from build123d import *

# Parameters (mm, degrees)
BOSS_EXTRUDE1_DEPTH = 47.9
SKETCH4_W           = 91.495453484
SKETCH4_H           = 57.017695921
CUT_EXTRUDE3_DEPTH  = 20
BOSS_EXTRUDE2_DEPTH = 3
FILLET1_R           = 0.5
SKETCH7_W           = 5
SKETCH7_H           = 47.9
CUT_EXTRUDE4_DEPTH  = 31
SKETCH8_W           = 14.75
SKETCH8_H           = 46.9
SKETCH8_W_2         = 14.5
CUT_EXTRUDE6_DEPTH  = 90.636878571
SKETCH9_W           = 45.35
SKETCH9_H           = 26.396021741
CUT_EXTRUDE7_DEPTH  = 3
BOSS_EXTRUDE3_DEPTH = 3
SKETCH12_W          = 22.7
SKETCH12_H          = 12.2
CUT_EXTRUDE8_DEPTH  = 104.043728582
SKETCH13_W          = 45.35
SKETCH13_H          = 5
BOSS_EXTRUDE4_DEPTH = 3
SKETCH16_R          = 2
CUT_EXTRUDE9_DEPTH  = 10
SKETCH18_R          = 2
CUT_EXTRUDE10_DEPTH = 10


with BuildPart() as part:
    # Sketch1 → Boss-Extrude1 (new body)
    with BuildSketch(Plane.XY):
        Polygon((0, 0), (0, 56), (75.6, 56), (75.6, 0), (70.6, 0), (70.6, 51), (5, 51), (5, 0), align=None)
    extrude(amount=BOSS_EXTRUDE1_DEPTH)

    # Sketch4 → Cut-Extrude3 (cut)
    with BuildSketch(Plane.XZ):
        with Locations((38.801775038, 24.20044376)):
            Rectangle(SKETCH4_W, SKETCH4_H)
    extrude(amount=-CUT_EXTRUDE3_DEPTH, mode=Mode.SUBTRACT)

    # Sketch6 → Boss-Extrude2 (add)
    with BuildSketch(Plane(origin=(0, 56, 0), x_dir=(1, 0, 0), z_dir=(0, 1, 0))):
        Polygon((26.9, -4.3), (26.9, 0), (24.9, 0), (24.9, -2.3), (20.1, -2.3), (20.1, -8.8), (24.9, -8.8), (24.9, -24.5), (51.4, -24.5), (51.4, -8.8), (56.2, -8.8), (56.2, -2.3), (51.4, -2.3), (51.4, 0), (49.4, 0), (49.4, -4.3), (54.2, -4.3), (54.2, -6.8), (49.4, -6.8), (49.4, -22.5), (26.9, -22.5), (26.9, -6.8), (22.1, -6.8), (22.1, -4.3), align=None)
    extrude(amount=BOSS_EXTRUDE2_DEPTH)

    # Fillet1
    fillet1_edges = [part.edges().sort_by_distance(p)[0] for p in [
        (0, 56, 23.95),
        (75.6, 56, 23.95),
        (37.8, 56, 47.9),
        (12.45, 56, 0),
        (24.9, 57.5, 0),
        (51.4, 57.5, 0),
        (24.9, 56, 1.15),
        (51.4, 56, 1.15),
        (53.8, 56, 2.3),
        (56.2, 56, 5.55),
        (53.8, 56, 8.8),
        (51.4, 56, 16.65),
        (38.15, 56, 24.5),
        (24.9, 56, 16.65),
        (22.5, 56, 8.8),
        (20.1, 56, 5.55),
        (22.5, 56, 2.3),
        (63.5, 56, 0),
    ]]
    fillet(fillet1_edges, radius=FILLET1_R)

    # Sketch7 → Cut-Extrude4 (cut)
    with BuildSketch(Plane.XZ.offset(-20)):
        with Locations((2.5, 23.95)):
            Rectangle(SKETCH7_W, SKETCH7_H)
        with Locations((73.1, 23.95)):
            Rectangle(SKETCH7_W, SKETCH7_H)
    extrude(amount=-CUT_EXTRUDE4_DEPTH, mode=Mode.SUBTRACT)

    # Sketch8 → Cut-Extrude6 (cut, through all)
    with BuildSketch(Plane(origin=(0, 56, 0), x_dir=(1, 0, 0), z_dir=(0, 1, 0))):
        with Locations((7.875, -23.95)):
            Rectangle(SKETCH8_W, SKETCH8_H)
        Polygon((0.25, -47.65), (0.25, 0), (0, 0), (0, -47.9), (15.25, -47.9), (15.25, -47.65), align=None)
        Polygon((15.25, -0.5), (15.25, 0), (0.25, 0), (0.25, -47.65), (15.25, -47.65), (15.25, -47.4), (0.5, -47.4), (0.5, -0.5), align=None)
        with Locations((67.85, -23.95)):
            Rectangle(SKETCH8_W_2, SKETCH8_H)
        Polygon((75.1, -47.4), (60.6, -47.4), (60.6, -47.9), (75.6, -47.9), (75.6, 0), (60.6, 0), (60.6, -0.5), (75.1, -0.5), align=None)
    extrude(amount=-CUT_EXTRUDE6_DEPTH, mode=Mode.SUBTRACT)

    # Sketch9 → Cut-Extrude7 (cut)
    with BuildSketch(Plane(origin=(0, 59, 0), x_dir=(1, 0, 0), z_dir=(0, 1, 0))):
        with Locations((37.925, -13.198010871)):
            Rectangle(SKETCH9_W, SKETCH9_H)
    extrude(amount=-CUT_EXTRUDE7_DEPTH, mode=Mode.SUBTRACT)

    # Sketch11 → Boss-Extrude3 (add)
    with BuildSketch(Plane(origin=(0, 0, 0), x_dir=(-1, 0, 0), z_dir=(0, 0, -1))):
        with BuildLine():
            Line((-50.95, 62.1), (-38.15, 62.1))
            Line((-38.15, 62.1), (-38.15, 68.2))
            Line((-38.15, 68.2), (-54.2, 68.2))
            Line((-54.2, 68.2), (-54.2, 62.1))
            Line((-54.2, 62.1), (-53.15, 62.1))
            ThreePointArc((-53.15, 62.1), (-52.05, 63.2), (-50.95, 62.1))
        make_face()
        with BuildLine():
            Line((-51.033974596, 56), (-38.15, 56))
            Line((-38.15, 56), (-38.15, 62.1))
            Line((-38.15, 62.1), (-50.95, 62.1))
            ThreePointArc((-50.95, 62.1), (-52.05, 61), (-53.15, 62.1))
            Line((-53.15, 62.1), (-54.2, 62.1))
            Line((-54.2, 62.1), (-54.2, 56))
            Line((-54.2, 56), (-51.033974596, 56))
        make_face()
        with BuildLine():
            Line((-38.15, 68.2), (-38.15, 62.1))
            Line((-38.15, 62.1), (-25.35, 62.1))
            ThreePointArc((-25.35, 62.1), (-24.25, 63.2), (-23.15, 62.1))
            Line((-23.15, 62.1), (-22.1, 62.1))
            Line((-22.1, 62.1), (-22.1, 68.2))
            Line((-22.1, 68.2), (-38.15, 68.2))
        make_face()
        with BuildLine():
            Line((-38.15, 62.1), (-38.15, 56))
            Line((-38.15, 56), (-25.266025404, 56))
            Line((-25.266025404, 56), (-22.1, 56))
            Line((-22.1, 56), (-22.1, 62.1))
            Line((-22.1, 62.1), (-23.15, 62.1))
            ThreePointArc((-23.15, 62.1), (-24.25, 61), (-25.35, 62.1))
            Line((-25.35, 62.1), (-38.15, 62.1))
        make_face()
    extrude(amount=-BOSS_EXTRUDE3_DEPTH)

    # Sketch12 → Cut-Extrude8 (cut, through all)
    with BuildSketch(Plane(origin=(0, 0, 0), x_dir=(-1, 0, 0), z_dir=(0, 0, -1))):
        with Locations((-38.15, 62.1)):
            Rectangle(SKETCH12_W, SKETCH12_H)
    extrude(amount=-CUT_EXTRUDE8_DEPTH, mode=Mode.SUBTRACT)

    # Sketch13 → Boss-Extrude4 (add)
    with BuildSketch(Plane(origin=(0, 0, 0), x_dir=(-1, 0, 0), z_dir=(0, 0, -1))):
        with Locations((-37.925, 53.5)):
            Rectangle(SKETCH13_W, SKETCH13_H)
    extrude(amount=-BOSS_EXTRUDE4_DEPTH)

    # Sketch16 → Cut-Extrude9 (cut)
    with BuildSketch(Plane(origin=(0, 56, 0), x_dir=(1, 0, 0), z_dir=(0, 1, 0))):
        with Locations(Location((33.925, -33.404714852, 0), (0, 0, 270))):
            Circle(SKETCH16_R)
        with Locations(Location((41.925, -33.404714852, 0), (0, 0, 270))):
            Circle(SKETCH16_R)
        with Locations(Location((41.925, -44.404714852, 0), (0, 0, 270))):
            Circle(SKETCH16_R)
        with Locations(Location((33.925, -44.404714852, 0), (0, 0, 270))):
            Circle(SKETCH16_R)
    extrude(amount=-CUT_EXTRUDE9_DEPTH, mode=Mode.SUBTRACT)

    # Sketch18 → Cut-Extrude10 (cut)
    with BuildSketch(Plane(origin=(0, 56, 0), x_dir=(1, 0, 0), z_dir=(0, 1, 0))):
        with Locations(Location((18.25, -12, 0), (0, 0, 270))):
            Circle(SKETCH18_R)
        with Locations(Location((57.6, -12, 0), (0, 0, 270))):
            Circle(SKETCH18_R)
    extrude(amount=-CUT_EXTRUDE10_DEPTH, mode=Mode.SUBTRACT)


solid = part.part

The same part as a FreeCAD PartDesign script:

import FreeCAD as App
import Part
import Sketcher
Q = App.Units.Quantity


def edges_at(feature, points):
    """Names of the edges that pass closest to the given points."""
    edges = feature.Shape.Edges
    near = lambda p: min(range(len(edges)), key=lambda i: edges[i].distToShape(Part.Vertex(*p))[0])
    return sorted({f"Edge{near(p) + 1}" for p in points})

doc = App.newDocument("Part")
body = doc.addObject("PartDesign::Body", "Body")

# Sketch on XY plane
sketch1 = body.newObject("Sketcher::SketchObject", "Sketch")
sketch1.AttachmentSupport = (doc.getObject("XY_Plane"), [""])
sketch1.MapMode = "FlatFace"
sketch1.addGeometry([
    Part.LineSegment(App.Vector(0, 56, 0), App.Vector(0, 0, 0)),  # 0
    Part.LineSegment(App.Vector(0, 0, 0), App.Vector(5, 0, 0)),  # 1
    Part.LineSegment(App.Vector(5, 0, 0), App.Vector(5, 51, 0)),  # 2
    Part.LineSegment(App.Vector(5, 51, 0), App.Vector(71, 51, 0)),  # 3
    Part.LineSegment(App.Vector(71, 51, 0), App.Vector(71, 0, 0)),  # 4
    Part.LineSegment(App.Vector(71, 0, 0), App.Vector(76, 0, 0)),  # 5
    Part.LineSegment(App.Vector(76, 0, 0), App.Vector(76, 56, 0)),  # 6
    Part.LineSegment(App.Vector(76, 56, 0), App.Vector(0, 56, 0)),  # 7
], False)
sketch1.addConstraint([
    Sketcher.Constraint("Coincident", 0, 2, 1, 1),
    Sketcher.Constraint("Coincident", 1, 2, 2, 1),
    Sketcher.Constraint("Coincident", 2, 2, 3, 1),
    Sketcher.Constraint("Coincident", 3, 2, 4, 1),
    Sketcher.Constraint("Coincident", 4, 2, 5, 1),
    Sketcher.Constraint("Coincident", 5, 2, 6, 1),
    Sketcher.Constraint("Coincident", 6, 2, 7, 1),
    Sketcher.Constraint("Coincident", 7, 2, 0, 1),
    Sketcher.Constraint("Vertical", 0),
    Sketcher.Constraint("Horizontal", 1),
    Sketcher.Constraint("Vertical", 2),
    Sketcher.Constraint("Horizontal", 3),
    Sketcher.Constraint("Vertical", 4),
    Sketcher.Constraint("Horizontal", 5),
    Sketcher.Constraint("Vertical", 6),
    Sketcher.Constraint("Horizontal", 7),
    Sketcher.Constraint("Coincident", 0, 2, -1, 1),
    Sketcher.Constraint("PointOnObject", 4, 2, -1),
    Sketcher.Constraint("Equal", 1, 5),
    Sketcher.Constraint("DistanceX", 1, 1, 1, 2, Q("5 mm")),
    Sketcher.Constraint("DistanceY", 0, 2, 0, 1, Q("56 mm")),
    Sketcher.Constraint("DistanceY", 2, 1, 2, 2, Q("51 mm")),
    Sketcher.Constraint("DistanceX", 3, 1, 3, 2, Q("65.6 mm")),
])
pad1 = body.newObject("PartDesign::Pad", "Pad")
pad1.Profile = sketch1
pad1.Length = 47.9

# Sketch on XZ plane
sketch2 = body.newObject("Sketcher::SketchObject", "Sketch001")
sketch2.AttachmentSupport = (doc.getObject("XZ_Plane"), [""])
sketch2.MapMode = "FlatFace"
sketch2.addGeometry([
    Part.LineSegment(App.Vector(-7, 53, 0), App.Vector(-7, -4, 0)),
    Part.LineSegment(App.Vector(-7, -4, 0), App.Vector(85, -4, 0)),
    Part.LineSegment(App.Vector(85, -4, 0), App.Vector(85, 53, 0)),
    Part.LineSegment(App.Vector(85, 53, 0), App.Vector(-7, 53, 0)),
], False)
sketch2.addConstraint([
    Sketcher.Constraint("Coincident", 0, 2, 1, 1),
    Sketcher.Constraint("Coincident", 1, 2, 2, 1),
    Sketcher.Constraint("Coincident", 2, 2, 3, 1),
    Sketcher.Constraint("Coincident", 3, 2, 0, 1),
    Sketcher.Constraint("Vertical", 0),
    Sketcher.Constraint("Horizontal", 1),
    Sketcher.Constraint("Vertical", 2),
    Sketcher.Constraint("Horizontal", 3),
    Sketcher.Constraint("DistanceX", -1, 1, 1, 2, Q("84.549502 mm")),
    Sketcher.Constraint("DistanceX", 1, 1, 1, 2, Q("91.495453 mm")),
    Sketcher.Constraint("DistanceY", 0, 2, 0, 1, Q("57.017696 mm")),
    Sketcher.Constraint("DistanceY", -1, 1, 2, 2, Q("52.709292 mm")),
])
pocket1 = body.newObject("PartDesign::Pocket", "Pocket")
pocket1.Profile = sketch2
pocket1.Length = 20

# Sketch on XZ plane
sketch3 = body.newObject("Sketcher::SketchObject", "Sketch002")
sketch3.AttachmentSupport = (doc.getObject("XZ_Plane"), [""])
sketch3.MapMode = "FlatFace"
sketch3.AttachmentOffset = App.Placement(App.Vector(0, 0, -56), App.Rotation())
sketch3.addGeometry([
    Part.LineSegment(App.Vector(26.9, 4.3, 0), App.Vector(26.9, 0, 0)),  # 0
    Part.LineSegment(App.Vector(26.9, 0, 0), App.Vector(24.9, 0, 0)),  # 1
    Part.LineSegment(App.Vector(24.9, 0, 0), App.Vector(24.9, 2.3, 0)),  # 2
    Part.LineSegment(App.Vector(24.9, 2.3, 0), App.Vector(20.1, 2.3, 0)),  # 3
    Part.LineSegment(App.Vector(20.1, 2.3, 0), App.Vector(20.1, 8.8, 0)),  # 4
    Part.LineSegment(App.Vector(20.1, 8.8, 0), App.Vector(24.9, 8.8, 0)),  # 5
    Part.LineSegment(App.Vector(24.9, 8.8, 0), App.Vector(24.9, 24.5, 0)),  # 6
    Part.LineSegment(App.Vector(24.9, 24.5, 0), App.Vector(51.4, 24.5, 0)),  # 7
    Part.LineSegment(App.Vector(51.4, 24.5, 0), App.Vector(51.4, 8.8, 0)),  # 8
    Part.LineSegment(App.Vector(51.4, 8.8, 0), App.Vector(56.2, 8.8, 0)),  # 9
    Part.LineSegment(App.Vector(56.2, 8.8, 0), App.Vector(56.2, 2.3, 0)),  # 10
    Part.LineSegment(App.Vector(56.2, 2.3, 0), App.Vector(51.4, 2.3, 0)),  # 11
    Part.LineSegment(App.Vector(51.4, 2.3, 0), App.Vector(51.4, 0, 0)),  # 12
    Part.LineSegment(App.Vector(51.4, 0, 0), App.Vector(49.4, 0, 0)),  # 13
    Part.LineSegment(App.Vector(49.4, 0, 0), App.Vector(49.4, 4.3, 0)),  # 14
    Part.LineSegment(App.Vector(49.4, 4.3, 0), App.Vector(54.2, 4.3, 0)),  # 15
    Part.LineSegment(App.Vector(54.2, 4.3, 0), App.Vector(54.2, 6.8, 0)),  # 16
    Part.LineSegment(App.Vector(54.2, 6.8, 0), App.Vector(49.4, 6.8, 0)),  # 17
    Part.LineSegment(App.Vector(49.4, 6.8, 0), App.Vector(49.4, 22.5, 0)),  # 18
    Part.LineSegment(App.Vector(49.4, 22.5, 0), App.Vector(26.9, 22.5, 0)),  # 19
    Part.LineSegment(App.Vector(26.9, 22.5, 0), App.Vector(26.9, 6.8, 0)),  # 20
    Part.LineSegment(App.Vector(26.9, 6.8, 0), App.Vector(22.1, 6.8, 0)),  # 21
    Part.LineSegment(App.Vector(22.1, 6.8, 0), App.Vector(22.1, 4.3, 0)),  # 22
    Part.LineSegment(App.Vector(22.1, 4.3, 0), App.Vector(26.9, 4.3, 0)),  # 23
], False)
sketch3.addConstraint([
    Sketcher.Constraint("Coincident", 0, 2, 1, 1),
    Sketcher.Constraint("Coincident", 1, 2, 2, 1),
    Sketcher.Constraint("Coincident", 2, 2, 3, 1),
    Sketcher.Constraint("Coincident", 3, 2, 4, 1),
    Sketcher.Constraint("Coincident", 4, 2, 5, 1),
    Sketcher.Constraint("Coincident", 5, 2, 6, 1),
    Sketcher.Constraint("Coincident", 6, 2, 7, 1),
    Sketcher.Constraint("Coincident", 7, 2, 8, 1),
    Sketcher.Constraint("Coincident", 8, 2, 9, 1),
    Sketcher.Constraint("Coincident", 9, 2, 10, 1),
    Sketcher.Constraint("Coincident", 10, 2, 11, 1),
    Sketcher.Constraint("Coincident", 11, 2, 12, 1),
    Sketcher.Constraint("Coincident", 12, 2, 13, 1),
    Sketcher.Constraint("Coincident", 13, 2, 14, 1),
    Sketcher.Constraint("Coincident", 14, 2, 15, 1),
    Sketcher.Constraint("Coincident", 15, 2, 16, 1),
    Sketcher.Constraint("Coincident", 16, 2, 17, 1),
    Sketcher.Constraint("Coincident", 17, 2, 18, 1),
    Sketcher.Constraint("Coincident", 18, 2, 19, 1),
    Sketcher.Constraint("Coincident", 19, 2, 20, 1),
    Sketcher.Constraint("Coincident", 20, 2, 21, 1),
    Sketcher.Constraint("Coincident", 21, 2, 22, 1),
    Sketcher.Constraint("Coincident", 22, 2, 23, 1),
    Sketcher.Constraint("Coincident", 23, 2, 0, 1),
    Sketcher.Constraint("Vertical", 0),
    Sketcher.Constraint("Horizontal", 1),
    Sketcher.Constraint("Vertical", 2),
    Sketcher.Constraint("Horizontal", 3),
    Sketcher.Constraint("Vertical", 4),
    Sketcher.Constraint("Horizontal", 5),
    Sketcher.Constraint("Vertical", 6),
    Sketcher.Constraint("Horizontal", 7),
    Sketcher.Constraint("Vertical", 8),
    Sketcher.Constraint("Horizontal", 9),
    Sketcher.Constraint("Vertical", 10),
    Sketcher.Constraint("Horizontal", 11),
    Sketcher.Constraint("Vertical", 12),
    Sketcher.Constraint("Horizontal", 13),
    Sketcher.Constraint("Vertical", 14),
    Sketcher.Constraint("Horizontal", 15),
    Sketcher.Constraint("Vertical", 16),
    Sketcher.Constraint("Horizontal", 17),
    Sketcher.Constraint("Vertical", 18),
    Sketcher.Constraint("Horizontal", 19),
    Sketcher.Constraint("Vertical", 20),
    Sketcher.Constraint("Horizontal", 21),
    Sketcher.Constraint("Vertical", 22),
    Sketcher.Constraint("Horizontal", 23),
    Sketcher.Constraint("PointOnObject", 0, 2, -1),
    Sketcher.Constraint("PointOnObject", 12, 2, -1),
    Sketcher.Constraint("Horizontal", 5, 2, 8, 2),
    Sketcher.Constraint("Horizontal", 3, 2, 10, 2),
    Sketcher.Constraint("Horizontal", 17, 2, 20, 2),
    Sketcher.Constraint("Horizontal", 15, 2, 22, 2),
    Sketcher.Constraint("Vertical", 2, 2, 5, 2),
    Sketcher.Constraint("Vertical", 8, 2, 11, 2),
    Sketcher.Constraint("Vertical", 14, 2, 17, 2),
    Sketcher.Constraint("Vertical", 0, 2, 19, 2),
    Sketcher.Constraint("Equal", 5, 9),
    Sketcher.Constraint("Equal", 1, 13),
    Sketcher.Constraint("Equal", 11, 15),
    Sketcher.Constraint("Equal", 17, 21),
    Sketcher.Constraint("Equal", 8, 18),
    Sketcher.Constraint("DistanceX", 1, 2, 1, 1, Q("2 mm")),
    Sketcher.Constraint("DistanceX", 3, 2, 3, 1, Q("4.8 mm")),
    Sketcher.Constraint("DistanceX", 7, 1, 7, 2, Q("26.5 mm")),
    Sketcher.Constraint("DistanceY", 0, 2, 0, 1, Q("4.3 mm")),
    Sketcher.Constraint("DistanceY", 2, 1, 2, 2, Q("2.3 mm")),
    Sketcher.Constraint("DistanceY", 4, 1, 4, 2, Q("6.5 mm")),
    Sketcher.Constraint("DistanceY", 6, 1, 6, 2, Q("15.7 mm")),
    Sketcher.Constraint("DistanceY", 16, 1, 16, 2, Q("2.5 mm")),
    Sketcher.Constraint("DistanceX", -1, 1, 0, 2, Q("26.9 mm")),
])
pad2 = body.newObject("PartDesign::Pad", "Pad001")
pad2.Profile = sketch3
pad2.Length = 3
pad2.Reversed = True
doc.recompute()

fillet = body.newObject("PartDesign::Fillet", "Fillet")
fillet.Base = (pad2, edges_at(pad2, [
    (0, 56, 23.95),
    (75.6, 56, 23.95),
    (37.8, 56, 47.9),
    (12.45, 56, 0),
    (24.9, 57.5, 0),
    (51.4, 57.5, 0),
    (24.9, 56, 1.15),
    (51.4, 56, 1.15),
    (53.8, 56, 2.3),
    (56.2, 56, 5.55),
    (53.8, 56, 8.8),
    (51.4, 56, 16.65),
    (38.15, 56, 24.5),
    (24.9, 56, 16.65),
    (22.5, 56, 8.8),
    (20.1, 56, 5.55),
    (22.5, 56, 2.3),
    (63.5, 56, 0),
]))
fillet.Radius = 0.5

# Sketch on XZ plane
sketch4 = body.newObject("Sketcher::SketchObject", "Sketch003")
sketch4.AttachmentSupport = (doc.getObject("XZ_Plane"), [""])
sketch4.MapMode = "FlatFace"
sketch4.AttachmentOffset = App.Placement(App.Vector(0, 0, -20), App.Rotation())
sketch4.addGeometry([
    Part.LineSegment(App.Vector(0, 48, 0), App.Vector(0, 0, 0)),  # 0
    Part.LineSegment(App.Vector(0, 0, 0), App.Vector(5, 0, 0)),  # 1
    Part.LineSegment(App.Vector(5, 0, 0), App.Vector(5, 48, 0)),  # 2
    Part.LineSegment(App.Vector(5, 48, 0), App.Vector(0, 48, 0)),  # 3
    Part.LineSegment(App.Vector(71, 48, 0), App.Vector(71, 0, 0)),  # 4
    Part.LineSegment(App.Vector(71, 0, 0), App.Vector(76, 0, 0)),  # 5
    Part.LineSegment(App.Vector(76, 0, 0), App.Vector(76, 48, 0)),  # 6
    Part.LineSegment(App.Vector(76, 48, 0), App.Vector(71, 48, 0)),  # 7
], False)
sketch4.addConstraint([
    Sketcher.Constraint("Coincident", 0, 2, 1, 1),
    Sketcher.Constraint("Coincident", 1, 2, 2, 1),
    Sketcher.Constraint("Coincident", 2, 2, 3, 1),
    Sketcher.Constraint("Coincident", 3, 2, 0, 1),
    Sketcher.Constraint("Coincident", 4, 2, 5, 1),
    Sketcher.Constraint("Coincident", 5, 2, 6, 1),
    Sketcher.Constraint("Coincident", 6, 2, 7, 1),
    Sketcher.Constraint("Coincident", 7, 2, 4, 1),
    Sketcher.Constraint("Vertical", 0),
    Sketcher.Constraint("Horizontal", 1),
    Sketcher.Constraint("Vertical", 2),
    Sketcher.Constraint("Horizontal", 3),
    Sketcher.Constraint("Vertical", 4),
    Sketcher.Constraint("Horizontal", 5),
    Sketcher.Constraint("Vertical", 6),
    Sketcher.Constraint("Horizontal", 7),
    Sketcher.Constraint("Coincident", 0, 2, -1, 1),
    Sketcher.Constraint("PointOnObject", 4, 2, -1),
    Sketcher.Constraint("Horizontal", 3, 2, 6, 2),
    Sketcher.Constraint("Equal", 3, 5),
    Sketcher.Constraint("DistanceX", 1, 1, 1, 2, Q("5 mm")),
    Sketcher.Constraint("DistanceY", 0, 2, 0, 1, Q("47.9 mm")),
    Sketcher.Constraint("DistanceX", -1, 1, 4, 2, Q("70.6 mm")),
])
pocket2 = body.newObject("PartDesign::Pocket", "Pocket001")
pocket2.Profile = sketch4
pocket2.Length = 31

# Sketch on XZ plane
sketch5 = body.newObject("Sketcher::SketchObject", "Sketch004")
sketch5.AttachmentSupport = (doc.getObject("XZ_Plane"), [""])
sketch5.MapMode = "FlatFace"
sketch5.AttachmentOffset = App.Placement(App.Vector(0, 0, -56), App.Rotation())
sketch5.addGeometry([
    Part.LineSegment(App.Vector(15, 0, 0), App.Vector(0, 0, 0)),  # 0
    Part.LineSegment(App.Vector(0, 0, 0), App.Vector(0, 48, 0)),  # 1
    Part.LineSegment(App.Vector(0, 48, 0), App.Vector(15, 48, 0)),  # 2
    Part.LineSegment(App.Vector(15, 48, 0), App.Vector(15, 0, 0)),  # 3
    Part.LineSegment(App.Vector(61, 48, 0), App.Vector(76, 48, 0)),  # 4
    Part.LineSegment(App.Vector(76, 48, 0), App.Vector(76, 0, 0)),  # 5
    Part.LineSegment(App.Vector(76, 0, 0), App.Vector(61, 0, 0)),  # 6
    Part.LineSegment(App.Vector(61, 0, 0), App.Vector(61, 48, 0)),  # 7
], False)
sketch5.addConstraint([
    Sketcher.Constraint("Coincident", 0, 2, 1, 1),
    Sketcher.Constraint("Coincident", 1, 2, 2, 1),
    Sketcher.Constraint("Coincident", 2, 2, 3, 1),
    Sketcher.Constraint("Coincident", 3, 2, 0, 1),
    Sketcher.Constraint("Coincident", 4, 2, 5, 1),
    Sketcher.Constraint("Coincident", 5, 2, 6, 1),
    Sketcher.Constraint("Coincident", 6, 2, 7, 1),
    Sketcher.Constraint("Coincident", 7, 2, 4, 1),
    Sketcher.Constraint("Horizontal", 0),
    Sketcher.Constraint("Vertical", 1),
    Sketcher.Constraint("Horizontal", 2),
    Sketcher.Constraint("Vertical", 3),
    Sketcher.Constraint("Horizontal", 4),
    Sketcher.Constraint("Vertical", 5),
    Sketcher.Constraint("Horizontal", 6),
    Sketcher.Constraint("Vertical", 7),
    Sketcher.Constraint("Coincident", 0, 2, -1, 1),
    Sketcher.Constraint("PointOnObject", 5, 2, -1),
    Sketcher.Constraint("Horizontal", 2, 2, 4, 2),
    Sketcher.Constraint("DistanceX", 4, 1, 4, 2, Q("15 mm")),
    Sketcher.Constraint("DistanceY", 1, 1, 1, 2, Q("47.9 mm")),
    Sketcher.Constraint("DistanceX", 0, 2, 0, 1, Q("15.25 mm")),
    Sketcher.Constraint("DistanceX", -1, 1, 4, 2, Q("75.6 mm")),
])
pocket3 = body.newObject("PartDesign::Pocket", "Pocket002")
pocket3.Profile = sketch5
pocket3.Type = "ThroughAll"
pocket3.Reversed = True

# Sketch on XZ plane
sketch6 = body.newObject("Sketcher::SketchObject", "Sketch005")
sketch6.AttachmentSupport = (doc.getObject("XZ_Plane"), [""])
sketch6.MapMode = "FlatFace"
sketch6.AttachmentOffset = App.Placement(App.Vector(0, 0, -59), App.Rotation())
sketch6.addGeometry([
    Part.LineSegment(App.Vector(15, 0, 0), App.Vector(15, 26, 0)),
    Part.LineSegment(App.Vector(15, 26, 0), App.Vector(61, 26, 0)),
    Part.LineSegment(App.Vector(61, 26, 0), App.Vector(61, 0, 0)),
    Part.LineSegment(App.Vector(61, 0, 0), App.Vector(15, 0, 0)),
], False)
sketch6.addConstraint([
    Sketcher.Constraint("Coincident", 0, 2, 1, 1),
    Sketcher.Constraint("Coincident", 1, 2, 2, 1),
    Sketcher.Constraint("Coincident", 2, 2, 3, 1),
    Sketcher.Constraint("Coincident", 3, 2, 0, 1),
    Sketcher.Constraint("Vertical", 0),
    Sketcher.Constraint("Horizontal", 1),
    Sketcher.Constraint("Vertical", 2),
    Sketcher.Constraint("Horizontal", 3),
    Sketcher.Constraint("PointOnObject", 2, 2, -1),
    Sketcher.Constraint("DistanceX", 1, 1, 1, 2, Q("45.35 mm")),
    Sketcher.Constraint("DistanceX", -1, 1, 1, 2, Q("60.6 mm")),
    Sketcher.Constraint("DistanceY", 0, 1, 0, 2, Q("26.396022 mm")),
])
pocket4 = body.newObject("PartDesign::Pocket", "Pocket003")
pocket4.Profile = sketch6
pocket4.Length = 3
pocket4.Reversed = True

# Sketch on XY plane
sketch7 = body.newObject("Sketcher::SketchObject", "Sketch006")
sketch7.AttachmentSupport = (doc.getObject("XY_Plane"), [""])
sketch7.MapMode = "FlatFace"
sketch7.addGeometry([
    Part.LineSegment(App.Vector(54.2, 68.2, 0), App.Vector(54.2, 56, 0)),  # 0
    Part.LineSegment(App.Vector(54.2, 56, 0), App.Vector(22.1, 56, 0)),  # 1
    Part.LineSegment(App.Vector(22.1, 56, 0), App.Vector(22.1, 68.2, 0)),  # 2
    Part.LineSegment(App.Vector(22.1, 68.2, 0), App.Vector(54.2, 68.2, 0)),  # 3
    Part.Circle(App.Vector(24.2, 62.1, 0), App.Vector(0, 0, 1), 1.1),  # 4
    Part.Circle(App.Vector(52, 62.1, 0), App.Vector(0, 0, 1), 1.1),  # 5
], False)
sketch7.addConstraint([
    Sketcher.Constraint("Coincident", 0, 2, 1, 1),
    Sketcher.Constraint("Coincident", 1, 2, 2, 1),
    Sketcher.Constraint("Coincident", 2, 2, 3, 1),
    Sketcher.Constraint("Coincident", 3, 2, 0, 1),
    Sketcher.Constraint("Vertical", 0),
    Sketcher.Constraint("Horizontal", 1),
    Sketcher.Constraint("Vertical", 2),
    Sketcher.Constraint("Horizontal", 3),
    Sketcher.Constraint("Equal", 4, 5),
    Sketcher.Constraint("Horizontal", 4, 3, 5, 3),
    Sketcher.Constraint("Diameter", 4, Q("2.2 mm")),
    Sketcher.Constraint("DistanceX", 1, 2, 1, 1, Q("32.1 mm")),
    Sketcher.Constraint("DistanceY", 0, 2, 0, 1, Q("12.2 mm")),
    Sketcher.Constraint("DistanceY", -1, 1, 0, 2, Q("56 mm")),
    Sketcher.Constraint("DistanceY", -1, 1, 4, 3, Q("62.1 mm")),
    Sketcher.Constraint("DistanceX", -1, 1, 0, 2, Q("54.2 mm")),
    Sketcher.Constraint("DistanceX", 4, 3, 5, 3, Q("27.8 mm")),
    Sketcher.Constraint("DistanceX", -1, 1, 4, 3, Q("24.25 mm")),
])
pad3 = body.newObject("PartDesign::Pad", "Pad002")
pad3.Profile = sketch7
pad3.Length = 3

# Sketch on XY plane
sketch8 = body.newObject("Sketcher::SketchObject", "Sketch007")
sketch8.AttachmentSupport = (doc.getObject("XY_Plane"), [""])
sketch8.MapMode = "FlatFace"
sketch8.addGeometry([
    Part.LineSegment(App.Vector(50, 68, 0), App.Vector(50, 56, 0)),
    Part.LineSegment(App.Vector(50, 56, 0), App.Vector(27, 56, 0)),
    Part.LineSegment(App.Vector(27, 56, 0), App.Vector(27, 68, 0)),
    Part.LineSegment(App.Vector(27, 68, 0), App.Vector(50, 68, 0)),
], False)
sketch8.addConstraint([
    Sketcher.Constraint("Coincident", 0, 2, 1, 1),
    Sketcher.Constraint("Coincident", 1, 2, 2, 1),
    Sketcher.Constraint("Coincident", 2, 2, 3, 1),
    Sketcher.Constraint("Coincident", 3, 2, 0, 1),
    Sketcher.Constraint("Vertical", 0),
    Sketcher.Constraint("Horizontal", 1),
    Sketcher.Constraint("Vertical", 2),
    Sketcher.Constraint("Horizontal", 3),
    Sketcher.Constraint("DistanceX", 1, 2, 1, 1, Q("22.7 mm")),
    Sketcher.Constraint("DistanceY", 0, 2, 0, 1, Q("12.2 mm")),
    Sketcher.Constraint("DistanceY", -1, 1, 0, 2, Q("56 mm")),
    Sketcher.Constraint("DistanceX", -1, 1, 0, 2, Q("49.5 mm")),
])
pocket5 = body.newObject("PartDesign::Pocket", "Pocket004")
pocket5.Profile = sketch8
pocket5.Type = "ThroughAll"
pocket5.Reversed = True

# Sketch on XY plane
sketch9 = body.newObject("Sketcher::SketchObject", "Sketch008")
sketch9.AttachmentSupport = (doc.getObject("XY_Plane"), [""])
sketch9.MapMode = "FlatFace"
sketch9.addGeometry([
    Part.LineSegment(App.Vector(61, 56, 0), App.Vector(61, 51, 0)),
    Part.LineSegment(App.Vector(61, 51, 0), App.Vector(15, 51, 0)),
    Part.LineSegment(App.Vector(15, 51, 0), App.Vector(15, 56, 0)),
    Part.LineSegment(App.Vector(15, 56, 0), App.Vector(61, 56, 0)),
], False)
sketch9.addConstraint([
    Sketcher.Constraint("Coincident", 0, 2, 1, 1),
    Sketcher.Constraint("Coincident", 1, 2, 2, 1),
    Sketcher.Constraint("Coincident", 2, 2, 3, 1),
    Sketcher.Constraint("Coincident", 3, 2, 0, 1),
    Sketcher.Constraint("Vertical", 0),
    Sketcher.Constraint("Horizontal", 1),
    Sketcher.Constraint("Vertical", 2),
    Sketcher.Constraint("Horizontal", 3),
    Sketcher.Constraint("DistanceY", 0, 2, 0, 1, Q("5 mm")),
    Sketcher.Constraint("DistanceY", -1, 1, 0, 2, Q("51 mm")),
    Sketcher.Constraint("DistanceX", 1, 2, 1, 1, Q("45.35 mm")),
    Sketcher.Constraint("DistanceX", -1, 1, 0, 2, Q("60.6 mm")),
])
pad4 = body.newObject("PartDesign::Pad", "Pad003")
pad4.Profile = sketch9
pad4.Length = 3

# Sketch on XZ plane
sketch10 = body.newObject("Sketcher::SketchObject", "Sketch009")
sketch10.AttachmentSupport = (doc.getObject("XZ_Plane"), [""])
sketch10.MapMode = "FlatFace"
sketch10.AttachmentOffset = App.Placement(App.Vector(0, 0, -56), App.Rotation())
sketch10.addGeometry([
    Part.Circle(App.Vector(33.9, 33.4, 0), App.Vector(0, 0, 1), 2),
    Part.Circle(App.Vector(41.9, 33.4, 0), App.Vector(0, 0, 1), 2),
    Part.Circle(App.Vector(41.9, 44.4, 0), App.Vector(0, 0, 1), 2),
    Part.Circle(App.Vector(33.9, 44.4, 0), App.Vector(0, 0, 1), 2),
], False)
sketch10.addConstraint([
    Sketcher.Constraint("Equal", 0, 1),
    Sketcher.Constraint("Equal", 1, 2),
    Sketcher.Constraint("Equal", 2, 3),
    Sketcher.Constraint("Horizontal", 0, 3, 1, 3),
    Sketcher.Constraint("Horizontal", 2, 3, 3, 3),
    Sketcher.Constraint("Vertical", 1, 3, 2, 3),
    Sketcher.Constraint("Vertical", 0, 3, 3, 3),
    Sketcher.Constraint("Diameter", 0, Q("4 mm")),
    Sketcher.Constraint("DistanceX", 0, 3, 1, 3, Q("8 mm")),
    Sketcher.Constraint("DistanceY", 1, 3, 2, 3, Q("11 mm")),
    Sketcher.Constraint("DistanceX", -1, 1, 0, 3, Q("33.925 mm")),
    Sketcher.Constraint("DistanceY", -1, 1, 0, 3, Q("33.404715 mm")),
])
pocket6 = body.newObject("PartDesign::Pocket", "Pocket005")
pocket6.Profile = sketch10
pocket6.Length = 10
pocket6.Reversed = True

# Sketch on XZ plane
sketch11 = body.newObject("Sketcher::SketchObject", "Sketch010")
sketch11.AttachmentSupport = (doc.getObject("XZ_Plane"), [""])
sketch11.MapMode = "FlatFace"
sketch11.AttachmentOffset = App.Placement(App.Vector(0, 0, -56), App.Rotation())
sketch11.addGeometry([
    Part.Circle(App.Vector(18.2, 12, 0), App.Vector(0, 0, 1), 2),
    Part.Circle(App.Vector(57.6, 12, 0), App.Vector(0, 0, 1), 2),
], False)
sketch11.addConstraint([
    Sketcher.Constraint("Equal", 0, 1),
    Sketcher.Constraint("Horizontal", 0, 3, 1, 3),
    Sketcher.Constraint("Diameter", 0, Q("4 mm")),
    Sketcher.Constraint("DistanceY", -1, 1, 0, 3, Q("12 mm")),
    Sketcher.Constraint("DistanceX", -1, 1, 1, 3, Q("57.6 mm")),
    Sketcher.Constraint("DistanceX", -1, 1, 0, 3, Q("18.25 mm")),
])
pocket7 = body.newObject("PartDesign::Pocket", "Pocket006")
pocket7.Profile = sketch11
pocket7.Length = 10
pocket7.Reversed = True

doc.recompute()
